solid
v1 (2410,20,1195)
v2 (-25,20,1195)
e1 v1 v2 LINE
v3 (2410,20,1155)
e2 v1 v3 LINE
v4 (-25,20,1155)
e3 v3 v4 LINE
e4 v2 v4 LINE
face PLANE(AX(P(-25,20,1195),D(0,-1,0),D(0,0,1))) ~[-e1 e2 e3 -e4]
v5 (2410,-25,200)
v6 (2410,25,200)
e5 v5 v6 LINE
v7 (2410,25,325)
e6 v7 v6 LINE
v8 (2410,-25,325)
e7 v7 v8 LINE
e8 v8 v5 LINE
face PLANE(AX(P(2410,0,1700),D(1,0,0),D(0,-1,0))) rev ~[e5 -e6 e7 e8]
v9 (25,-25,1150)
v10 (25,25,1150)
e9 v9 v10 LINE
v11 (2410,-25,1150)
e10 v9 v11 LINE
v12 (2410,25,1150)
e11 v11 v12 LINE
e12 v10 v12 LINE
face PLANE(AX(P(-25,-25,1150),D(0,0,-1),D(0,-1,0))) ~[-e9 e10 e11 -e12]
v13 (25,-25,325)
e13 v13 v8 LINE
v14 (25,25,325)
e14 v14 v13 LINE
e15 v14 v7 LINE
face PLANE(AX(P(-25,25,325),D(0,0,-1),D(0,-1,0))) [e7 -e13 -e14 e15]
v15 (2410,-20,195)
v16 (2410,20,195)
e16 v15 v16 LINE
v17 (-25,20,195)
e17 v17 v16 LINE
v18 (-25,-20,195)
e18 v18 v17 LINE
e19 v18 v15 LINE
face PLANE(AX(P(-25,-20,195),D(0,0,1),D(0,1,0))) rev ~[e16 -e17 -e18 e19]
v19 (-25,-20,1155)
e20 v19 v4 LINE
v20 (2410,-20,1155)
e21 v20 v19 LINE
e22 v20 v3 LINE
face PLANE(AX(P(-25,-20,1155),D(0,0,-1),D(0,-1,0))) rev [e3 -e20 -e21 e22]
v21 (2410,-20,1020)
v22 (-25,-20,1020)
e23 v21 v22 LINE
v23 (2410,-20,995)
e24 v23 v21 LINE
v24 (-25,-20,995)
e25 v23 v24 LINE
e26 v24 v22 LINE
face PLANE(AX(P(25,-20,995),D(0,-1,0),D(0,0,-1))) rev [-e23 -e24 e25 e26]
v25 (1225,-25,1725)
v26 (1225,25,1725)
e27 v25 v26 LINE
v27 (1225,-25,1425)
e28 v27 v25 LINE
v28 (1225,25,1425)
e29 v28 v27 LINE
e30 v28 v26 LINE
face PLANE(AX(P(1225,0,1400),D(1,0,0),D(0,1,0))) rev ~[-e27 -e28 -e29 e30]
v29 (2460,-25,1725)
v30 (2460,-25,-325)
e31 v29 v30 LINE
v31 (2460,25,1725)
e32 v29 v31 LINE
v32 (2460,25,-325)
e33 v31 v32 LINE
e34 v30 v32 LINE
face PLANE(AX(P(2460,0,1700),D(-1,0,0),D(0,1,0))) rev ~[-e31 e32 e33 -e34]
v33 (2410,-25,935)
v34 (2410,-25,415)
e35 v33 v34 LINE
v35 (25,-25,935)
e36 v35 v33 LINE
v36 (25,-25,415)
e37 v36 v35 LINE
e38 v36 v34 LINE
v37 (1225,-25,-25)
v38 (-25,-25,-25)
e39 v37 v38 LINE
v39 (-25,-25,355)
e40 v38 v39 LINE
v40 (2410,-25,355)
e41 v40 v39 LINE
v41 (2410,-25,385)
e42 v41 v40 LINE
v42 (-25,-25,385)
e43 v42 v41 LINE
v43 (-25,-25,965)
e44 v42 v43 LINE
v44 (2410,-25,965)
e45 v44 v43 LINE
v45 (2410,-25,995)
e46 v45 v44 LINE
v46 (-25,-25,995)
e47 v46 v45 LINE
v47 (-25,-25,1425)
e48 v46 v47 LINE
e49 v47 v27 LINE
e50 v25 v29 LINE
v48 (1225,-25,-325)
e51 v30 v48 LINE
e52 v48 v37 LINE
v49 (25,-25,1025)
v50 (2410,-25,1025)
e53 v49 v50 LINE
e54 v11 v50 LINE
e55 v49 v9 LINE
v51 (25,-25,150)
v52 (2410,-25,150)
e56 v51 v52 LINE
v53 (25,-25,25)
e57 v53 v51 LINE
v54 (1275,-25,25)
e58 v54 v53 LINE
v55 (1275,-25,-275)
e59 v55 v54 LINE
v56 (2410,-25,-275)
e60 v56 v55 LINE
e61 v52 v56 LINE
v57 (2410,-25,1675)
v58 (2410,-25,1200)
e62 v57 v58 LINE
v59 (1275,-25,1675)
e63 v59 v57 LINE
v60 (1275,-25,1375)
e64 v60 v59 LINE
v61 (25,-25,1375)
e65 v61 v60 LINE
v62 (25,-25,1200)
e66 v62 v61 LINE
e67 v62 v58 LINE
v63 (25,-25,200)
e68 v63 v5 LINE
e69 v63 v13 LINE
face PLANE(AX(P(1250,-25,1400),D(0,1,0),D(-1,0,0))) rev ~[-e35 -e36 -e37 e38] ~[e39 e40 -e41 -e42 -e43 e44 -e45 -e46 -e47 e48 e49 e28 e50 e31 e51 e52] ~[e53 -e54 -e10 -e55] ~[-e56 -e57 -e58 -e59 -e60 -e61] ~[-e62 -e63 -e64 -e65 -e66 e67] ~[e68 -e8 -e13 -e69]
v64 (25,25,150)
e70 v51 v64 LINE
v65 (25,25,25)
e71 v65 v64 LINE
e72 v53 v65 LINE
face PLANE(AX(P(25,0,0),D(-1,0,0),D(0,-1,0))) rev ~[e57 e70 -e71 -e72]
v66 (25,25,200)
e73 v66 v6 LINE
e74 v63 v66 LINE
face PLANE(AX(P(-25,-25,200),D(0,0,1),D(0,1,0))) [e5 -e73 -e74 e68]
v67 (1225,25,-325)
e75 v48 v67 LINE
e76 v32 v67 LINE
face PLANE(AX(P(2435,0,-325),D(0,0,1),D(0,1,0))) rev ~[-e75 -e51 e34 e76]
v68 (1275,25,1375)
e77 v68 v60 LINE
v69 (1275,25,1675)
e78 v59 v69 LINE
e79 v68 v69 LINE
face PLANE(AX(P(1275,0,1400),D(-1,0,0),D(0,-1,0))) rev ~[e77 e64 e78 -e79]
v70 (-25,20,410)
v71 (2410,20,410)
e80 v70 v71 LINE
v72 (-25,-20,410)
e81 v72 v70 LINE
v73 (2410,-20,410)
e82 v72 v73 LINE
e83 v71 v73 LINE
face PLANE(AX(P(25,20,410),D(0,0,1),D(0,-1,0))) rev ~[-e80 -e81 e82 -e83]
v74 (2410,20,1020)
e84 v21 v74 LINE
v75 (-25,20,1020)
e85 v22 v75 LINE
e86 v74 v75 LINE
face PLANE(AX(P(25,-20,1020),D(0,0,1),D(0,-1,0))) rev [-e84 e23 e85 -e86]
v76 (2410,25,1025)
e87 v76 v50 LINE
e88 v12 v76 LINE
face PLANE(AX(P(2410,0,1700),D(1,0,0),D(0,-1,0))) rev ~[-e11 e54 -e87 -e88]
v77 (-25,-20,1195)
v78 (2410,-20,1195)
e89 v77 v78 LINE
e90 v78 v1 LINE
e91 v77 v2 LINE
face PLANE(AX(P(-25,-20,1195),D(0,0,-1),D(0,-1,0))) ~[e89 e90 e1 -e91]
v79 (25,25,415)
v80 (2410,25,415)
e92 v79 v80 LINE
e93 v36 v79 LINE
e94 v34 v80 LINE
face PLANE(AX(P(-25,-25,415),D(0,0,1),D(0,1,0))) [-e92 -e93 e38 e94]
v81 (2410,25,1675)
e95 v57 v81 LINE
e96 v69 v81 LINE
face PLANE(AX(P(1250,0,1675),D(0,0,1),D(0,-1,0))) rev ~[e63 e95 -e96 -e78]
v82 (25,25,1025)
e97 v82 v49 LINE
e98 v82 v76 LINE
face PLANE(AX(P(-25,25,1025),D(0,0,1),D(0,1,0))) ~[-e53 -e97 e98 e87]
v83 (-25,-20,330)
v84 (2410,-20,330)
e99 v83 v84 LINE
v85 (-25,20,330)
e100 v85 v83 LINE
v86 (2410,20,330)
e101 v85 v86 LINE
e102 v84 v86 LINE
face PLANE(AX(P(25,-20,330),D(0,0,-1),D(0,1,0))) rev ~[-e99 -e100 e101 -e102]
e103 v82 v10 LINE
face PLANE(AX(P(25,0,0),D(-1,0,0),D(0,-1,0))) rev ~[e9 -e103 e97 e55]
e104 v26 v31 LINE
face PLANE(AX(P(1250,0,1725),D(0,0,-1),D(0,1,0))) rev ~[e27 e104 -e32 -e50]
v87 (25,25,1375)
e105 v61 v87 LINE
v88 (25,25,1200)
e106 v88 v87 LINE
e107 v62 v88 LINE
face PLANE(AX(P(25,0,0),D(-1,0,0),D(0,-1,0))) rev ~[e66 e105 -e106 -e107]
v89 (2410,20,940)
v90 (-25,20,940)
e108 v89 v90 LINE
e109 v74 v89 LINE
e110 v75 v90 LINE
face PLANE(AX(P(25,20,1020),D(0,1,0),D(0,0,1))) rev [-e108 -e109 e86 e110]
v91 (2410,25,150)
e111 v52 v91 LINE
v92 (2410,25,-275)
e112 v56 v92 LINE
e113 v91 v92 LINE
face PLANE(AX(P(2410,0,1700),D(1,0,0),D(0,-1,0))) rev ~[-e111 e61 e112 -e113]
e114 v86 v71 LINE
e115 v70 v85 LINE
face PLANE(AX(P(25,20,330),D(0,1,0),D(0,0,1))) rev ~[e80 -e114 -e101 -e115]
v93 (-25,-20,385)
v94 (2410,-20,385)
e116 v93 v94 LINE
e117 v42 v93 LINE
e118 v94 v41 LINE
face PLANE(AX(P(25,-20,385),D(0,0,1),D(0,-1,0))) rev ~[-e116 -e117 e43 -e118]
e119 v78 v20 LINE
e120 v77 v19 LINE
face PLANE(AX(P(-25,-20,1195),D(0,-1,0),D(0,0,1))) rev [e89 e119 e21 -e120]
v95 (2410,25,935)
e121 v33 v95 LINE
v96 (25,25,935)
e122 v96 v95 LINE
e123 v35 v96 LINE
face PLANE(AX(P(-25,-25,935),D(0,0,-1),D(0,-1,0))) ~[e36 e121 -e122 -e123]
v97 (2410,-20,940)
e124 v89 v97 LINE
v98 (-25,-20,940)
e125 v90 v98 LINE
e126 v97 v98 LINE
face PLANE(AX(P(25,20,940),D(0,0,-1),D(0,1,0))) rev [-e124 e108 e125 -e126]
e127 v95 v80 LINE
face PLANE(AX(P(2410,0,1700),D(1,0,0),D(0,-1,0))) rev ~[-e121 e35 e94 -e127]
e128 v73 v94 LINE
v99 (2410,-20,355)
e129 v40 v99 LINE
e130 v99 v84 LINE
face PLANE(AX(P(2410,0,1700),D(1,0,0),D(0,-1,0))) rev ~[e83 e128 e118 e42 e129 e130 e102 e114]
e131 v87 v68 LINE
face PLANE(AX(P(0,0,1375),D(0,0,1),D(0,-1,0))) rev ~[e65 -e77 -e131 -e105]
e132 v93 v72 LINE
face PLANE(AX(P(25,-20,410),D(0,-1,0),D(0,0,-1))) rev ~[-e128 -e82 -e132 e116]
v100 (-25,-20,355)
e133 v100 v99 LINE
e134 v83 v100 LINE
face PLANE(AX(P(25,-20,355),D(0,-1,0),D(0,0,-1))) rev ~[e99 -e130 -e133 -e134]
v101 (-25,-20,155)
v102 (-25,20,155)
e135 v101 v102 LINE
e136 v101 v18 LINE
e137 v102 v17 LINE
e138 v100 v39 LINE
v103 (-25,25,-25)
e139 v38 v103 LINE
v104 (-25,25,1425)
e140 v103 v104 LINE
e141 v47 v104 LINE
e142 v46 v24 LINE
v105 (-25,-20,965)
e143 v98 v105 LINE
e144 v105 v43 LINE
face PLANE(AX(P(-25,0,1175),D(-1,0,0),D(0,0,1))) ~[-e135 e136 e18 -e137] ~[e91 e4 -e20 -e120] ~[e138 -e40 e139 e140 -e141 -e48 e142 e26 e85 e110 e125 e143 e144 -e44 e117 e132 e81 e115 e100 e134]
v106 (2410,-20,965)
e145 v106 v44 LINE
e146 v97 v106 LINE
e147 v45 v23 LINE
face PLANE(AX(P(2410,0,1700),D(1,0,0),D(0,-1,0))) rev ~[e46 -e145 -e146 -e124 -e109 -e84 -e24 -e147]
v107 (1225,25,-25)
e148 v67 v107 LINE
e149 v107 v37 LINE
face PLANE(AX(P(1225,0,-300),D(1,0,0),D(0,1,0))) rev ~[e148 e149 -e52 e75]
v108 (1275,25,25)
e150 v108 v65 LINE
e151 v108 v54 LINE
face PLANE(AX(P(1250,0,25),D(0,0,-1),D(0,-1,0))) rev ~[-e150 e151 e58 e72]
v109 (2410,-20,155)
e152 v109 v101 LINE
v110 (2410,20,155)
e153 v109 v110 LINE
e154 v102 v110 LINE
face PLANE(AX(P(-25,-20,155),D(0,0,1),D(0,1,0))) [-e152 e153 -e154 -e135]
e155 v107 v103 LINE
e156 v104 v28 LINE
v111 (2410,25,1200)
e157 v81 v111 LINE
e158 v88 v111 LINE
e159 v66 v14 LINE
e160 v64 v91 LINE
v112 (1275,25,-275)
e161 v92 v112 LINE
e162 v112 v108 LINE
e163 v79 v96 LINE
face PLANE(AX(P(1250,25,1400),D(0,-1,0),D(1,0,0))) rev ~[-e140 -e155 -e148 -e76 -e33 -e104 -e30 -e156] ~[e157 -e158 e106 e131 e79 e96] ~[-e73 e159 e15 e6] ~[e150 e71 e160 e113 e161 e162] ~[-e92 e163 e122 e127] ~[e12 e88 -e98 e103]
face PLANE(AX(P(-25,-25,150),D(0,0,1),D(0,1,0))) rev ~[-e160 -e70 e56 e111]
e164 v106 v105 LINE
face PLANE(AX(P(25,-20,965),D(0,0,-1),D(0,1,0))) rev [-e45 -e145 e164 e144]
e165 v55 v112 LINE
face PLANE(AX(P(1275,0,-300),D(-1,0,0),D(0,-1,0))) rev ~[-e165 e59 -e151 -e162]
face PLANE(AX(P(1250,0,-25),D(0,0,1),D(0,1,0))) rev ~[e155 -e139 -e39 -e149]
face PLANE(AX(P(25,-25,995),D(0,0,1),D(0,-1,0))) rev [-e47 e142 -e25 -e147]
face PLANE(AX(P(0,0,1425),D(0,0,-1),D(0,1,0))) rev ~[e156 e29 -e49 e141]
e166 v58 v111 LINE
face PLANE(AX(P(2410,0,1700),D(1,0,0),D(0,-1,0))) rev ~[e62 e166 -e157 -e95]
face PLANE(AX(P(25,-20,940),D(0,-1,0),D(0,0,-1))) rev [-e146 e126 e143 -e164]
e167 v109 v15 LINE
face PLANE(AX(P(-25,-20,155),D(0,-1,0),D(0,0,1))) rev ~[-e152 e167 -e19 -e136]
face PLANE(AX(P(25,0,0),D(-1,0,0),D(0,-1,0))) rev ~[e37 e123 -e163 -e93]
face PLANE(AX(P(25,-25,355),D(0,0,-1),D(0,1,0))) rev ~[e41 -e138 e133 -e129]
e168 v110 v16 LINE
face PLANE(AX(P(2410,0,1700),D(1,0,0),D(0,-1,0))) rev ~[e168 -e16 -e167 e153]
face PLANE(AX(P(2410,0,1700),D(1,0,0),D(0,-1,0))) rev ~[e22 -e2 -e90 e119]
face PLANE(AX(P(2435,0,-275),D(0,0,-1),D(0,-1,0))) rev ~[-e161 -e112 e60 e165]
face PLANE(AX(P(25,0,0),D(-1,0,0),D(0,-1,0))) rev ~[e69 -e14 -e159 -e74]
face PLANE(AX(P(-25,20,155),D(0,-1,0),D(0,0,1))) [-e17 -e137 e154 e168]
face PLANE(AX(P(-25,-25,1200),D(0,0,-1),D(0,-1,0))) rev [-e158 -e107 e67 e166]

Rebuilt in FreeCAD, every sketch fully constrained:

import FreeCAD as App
import Part
import Sketcher


def add_polygon(sketch, points):
    """Adds a closed chain of lines whose ends are joined by coincident constraints."""
    first, n = sketch.GeometryCount, len(points)
    for a, b in zip(points, points[1:] + points[:1]):
        sketch.addGeometry(Part.LineSegment(App.Vector(*a, 0), App.Vector(*b, 0)), False)
    for i in range(n):
        sketch.addConstraint(Sketcher.Constraint("Coincident", first + i, 2, first + (i + 1) % n, 1))

doc = App.newDocument("Part")
body = doc.addObject("PartDesign::Body", "Body")

sketch1 = body.newObject("Sketcher::SketchObject", "Sketch")
sketch1.AttachmentSupport = (doc.getObject("YZ_Plane"), [""])
sketch1.MapMode = "FlatFace"
add_polygon(sketch1, [(25, 25), (-25, 25), (-25, -25), (25, -25)])
sketch1.addConstraint(Sketcher.Constraint("Horizontal", 0))
sketch1.addConstraint(Sketcher.Constraint("Vertical", 1))
sketch1.addConstraint(Sketcher.Constraint("Horizontal", 2))
sketch1.addConstraint(Sketcher.Constraint("Vertical", 3))
sketch1.addConstraint(Sketcher.Constraint("Symmetric", 0, 2, 2, 2, -1, 1))
sketch1.addConstraint(Sketcher.Constraint("Equal", 2, 1))
sketch1.addConstraint(Sketcher.Constraint("DistanceX", 0, 2, 0, 1, 50.0))

sketch2 = body.newObject("Sketcher::SketchObject", "Sketch001")
sketch2.AttachmentSupport = (doc.getObject("XZ_Plane"), [""])
sketch2.MapMode = "FlatFace"
add_polygon(sketch2, [(1250, 1400), (1250, 1700), (2435, 1700), (2435, -300), (1250, -300), (1250, 0), (0, 0), (0, 1400)])
sketch2.addConstraint(Sketcher.Constraint("Vertical", 0))
sketch2.addConstraint(Sketcher.Constraint("Horizontal", 1))
sketch2.addConstraint(Sketcher.Constraint("Vertical", 2))
sketch2.addConstraint(Sketcher.Constraint("Horizontal", 3))
sketch2.addConstraint(Sketcher.Constraint("Vertical", 4))
sketch2.addConstraint(Sketcher.Constraint("Horizontal", 5))
sketch2.addConstraint(Sketcher.Constraint("Vertical", 6))
sketch2.addConstraint(Sketcher.Constraint("Horizontal", 7))
sketch2.addConstraint(Sketcher.Constraint("Coincident", 5, 2, -1, 1))
sketch2.addConstraint(Sketcher.Constraint("Vertical", 0, 2, 3, 2))
sketch2.addConstraint(Sketcher.Constraint("Equal", 0, 4))
sketch2.addConstraint(Sketcher.Constraint("DistanceX", 1, 1, 1, 2, 1185.0))
sketch2.addConstraint(Sketcher.Constraint("DistanceX", 5, 2, 5, 1, 1250.0))
sketch2.addConstraint(Sketcher.Constraint("DistanceY", 0, 1, 0, 2, 300.0))
sketch2.addConstraint(Sketcher.Constraint("DistanceY", 2, 2, 2, 1, 2000.0))
doc.recompute()

additivepipe = body.newObject("PartDesign::AdditivePipe", "AdditivePipe")
additivepipe.Profile = sketch1
additivepipe.Spine = (sketch2, ["Edge1", "Edge2", "Edge3", "Edge4", "Edge5", "Edge6", "Edge7", "Edge8"])
additivepipe.Transition = "Right corner"

sketch3 = body.newObject("Sketcher::SketchObject", "Sketch002")
sketch3.AttachmentSupport = (doc.getObject("YZ_Plane"), [""])
sketch3.MapMode = "FlatFace"
sketch3.AttachmentOffset = App.Placement(App.Vector(0, 0, -25), App.Rotation())
add_polygon(sketch3, [(25, 415), (25, 325), (-25, 325), (-25, 355), (-20, 355), (-20, 330), (20, 330), (20, 410), (-20, 410), (-20, 385), (-25, 385), (-25, 415)])
sketch3.addConstraint(Sketcher.Constraint("Vertical", 0))
sketch3.addConstraint(Sketcher.Constraint("Horizontal", 1))
sketch3.addConstraint(Sketcher.Constraint("Vertical", 2))
sketch3.addConstraint(Sketcher.Constraint("Horizontal", 3))
sketch3.addConstraint(Sketcher.Constraint("Vertical", 4))
sketch3.addConstraint(Sketcher.Constraint("Horizontal", 5))
sketch3.addConstraint(Sketcher.Constraint("Vertical", 6))
sketch3.addConstraint(Sketcher.Constraint("Horizontal", 7))
sketch3.addConstraint(Sketcher.Constraint("Vertical", 8))
sketch3.addConstraint(Sketcher.Constraint("Horizontal", 9))
sketch3.addConstraint(Sketcher.Constraint("Vertical", 10))
sketch3.addConstraint(Sketcher.Constraint("Horizontal", 11))
sketch3.addConstraint(Sketcher.Constraint("Vertical", 4, 2, 7, 2))
sketch3.addConstraint(Sketcher.Constraint("Vertical", 2, 2, 9, 2))
sketch3.addConstraint(Sketcher.Constraint("Equal", 4, 8))
sketch3.addConstraint(Sketcher.Constraint("Equal", 2, 10))
sketch3.addConstraint(Sketcher.Constraint("DistanceX", 1, 2, 1, 1, 50.0))
sketch3.addConstraint(Sketcher.Constraint("DistanceX", 3, 1, 3, 2, 5.0))
sketch3.addConstraint(Sketcher.Constraint("DistanceX", 5, 1, 5, 2, 40.0))
sketch3.addConstraint(Sketcher.Constraint("DistanceY", 0, 2, 0, 1, 90.0))
sketch3.addConstraint(Sketcher.Constraint("DistanceY", 2, 1, 2, 2, 30.0))
sketch3.addConstraint(Sketcher.Constraint("DistanceY", 4, 2, 4, 1, 25.0))
sketch3.addConstraint(Sketcher.Constraint("DistanceX", -1, 1, 0, 2, 25.0))
sketch3.addConstraint(Sketcher.Constraint("DistanceY", -1, 1, 0, 2, 325.0))
pad1 = body.newObject("PartDesign::Pad", "Pad")
pad1.Profile = sketch3
pad1.Length = 2435

sketch4 = body.newObject("Sketcher::SketchObject", "Sketch003")
sketch4.AttachmentSupport = (doc.getObject("YZ_Plane"), [""])
sketch4.MapMode = "FlatFace"
sketch4.AttachmentOffset = App.Placement(App.Vector(0, 0, 25), App.Rotation())
add_polygon(sketch4, [(-25, 385), (-25, 355), (-20, 355), (-20, 330), (20, 330), (20, 410), (-20, 410), (-20, 385)])
sketch4.addConstraint(Sketcher.Constraint("Vertical", 0))
sketch4.addConstraint(Sketcher.Constraint("Horizontal", 1))
sketch4.addConstraint(Sketcher.Constraint("Vertical", 2))
sketch4.addConstraint(Sketcher.Constraint("Horizontal", 3))
sketch4.addConstraint(Sketcher.Constraint("Vertical", 4))
sketch4.addConstraint(Sketcher.Constraint("Horizontal", 5))
sketch4.addConstraint(Sketcher.Constraint("Vertical", 6))
sketch4.addConstraint(Sketcher.Constraint("Horizontal", 7))
sketch4.addConstraint(Sketcher.Constraint("Vertical", 2, 2, 5, 2))
sketch4.addConstraint(Sketcher.Constraint("Equal", 2, 6))
sketch4.addConstraint(Sketcher.Constraint("DistanceX", 1, 1, 1, 2, 5.0))
sketch4.addConstraint(Sketcher.Constraint("DistanceX", 3, 1, 3, 2, 40.0))
sketch4.addConstraint(Sketcher.Constraint("DistanceY", 0, 2, 0, 1, 30.0))
sketch4.addConstraint(Sketcher.Constraint("DistanceY", 2, 2, 2, 1, 25.0))
sketch4.addConstraint(Sketcher.Constraint("DistanceX", 0, 2, -1, 1, 25.0))
sketch4.addConstraint(Sketcher.Constraint("DistanceY", -1, 1, 0, 2, 355.0))
pocket1 = body.newObject("PartDesign::Pocket", "Pocket")
pocket1.Profile = sketch4
pocket1.Length = 80
doc.recompute()

datumplane = body.newObject("PartDesign::Plane", "DatumPlane")
datumplane.AttachmentSupport = (doc.getObject("XY_Plane"), [""])
datumplane.MapMode = "FlatFace"
datumplane.AttachmentOffset = App.Placement(App.Vector(0, 0, 675), App.Rotation())
mirrored = body.newObject("PartDesign::Mirrored", "Mirrored")
mirrored.Originals = [pad1, pocket1]
mirrored.MirrorPlane = (datumplane, [""])
body.Tip = mirrored

sketch5 = body.newObject("Sketcher::SketchObject", "Sketch004")
sketch5.AttachmentSupport = (doc.getObject("YZ_Plane"), [""])
sketch5.MapMode = "FlatFace"
sketch5.AttachmentOffset = App.Placement(App.Vector(0, 0, -25), App.Rotation())
add_polygon(sketch5, [(25, 150), (-25, 150), (-25, 200), (25, 200)])
add_polygon(sketch5, [(-20, 195), (-20, 155), (20, 155), (20, 195)])
sketch5.addConstraint(Sketcher.Constraint("Horizontal", 0))
sketch5.addConstraint(Sketcher.Constraint("Vertical", 1))
sketch5.addConstraint(Sketcher.Constraint("Horizontal", 2))
sketch5.addConstraint(Sketcher.Constraint("Vertical", 3))
sketch5.addConstraint(Sketcher.Constraint("Vertical", 4))
sketch5.addConstraint(Sketcher.Constraint("Horizontal", 5))
sketch5.addConstraint(Sketcher.Constraint("Vertical", 6))
sketch5.addConstraint(Sketcher.Constraint("Horizontal", 7))
sketch5.addConstraint(Sketcher.Constraint("Equal", 2, 1))
sketch5.addConstraint(Sketcher.Constraint("Equal", 7, 4))
sketch5.addConstraint(Sketcher.Constraint("DistanceX", 0, 2, 0, 1, 50.0))
sketch5.addConstraint(Sketcher.Constraint("DistanceX", 5, 1, 5, 2, 40.0))
sketch5.addConstraint(Sketcher.Constraint("DistanceX", 0, 2, -1, 1, 25.0))
sketch5.addConstraint(Sketcher.Constraint("DistanceY", -1, 1, 0, 2, 150.0))
sketch5.addConstraint(Sketcher.Constraint("DistanceX", 4, 2, -1, 1, 20.0))
sketch5.addConstraint(Sketcher.Constraint("DistanceY", -1, 1, 4, 2, 155.0))
pad2 = body.newObject("PartDesign::Pad", "Pad001")
pad2.Profile = sketch5
pad2.Length = 2435

sketch6 = body.newObject("Sketcher::SketchObject", "Sketch005")
sketch6.AttachmentSupport = (doc.getObject("YZ_Plane"), [""])
sketch6.MapMode = "FlatFace"
sketch6.AttachmentOffset = App.Placement(App.Vector(0, 0, -25), App.Rotation())
add_polygon(sketch6, [(20, 155), (-20, 155), (-20, 195), (20, 195)])
sketch6.addConstraint(Sketcher.Constraint("Horizontal", 0))
sketch6.addConstraint(Sketcher.Constraint("Vertical", 1))
sketch6.addConstraint(Sketcher.Constraint("Horizontal", 2))
sketch6.addConstraint(Sketcher.Constraint("Vertical", 3))
sketch6.addConstraint(Sketcher.Constraint("Equal", 2, 1))
sketch6.addConstraint(Sketcher.Constraint("DistanceX", 0, 2, 0, 1, 40.0))
sketch6.addConstraint(Sketcher.Constraint("DistanceX", 0, 2, -1, 1, 20.0))
sketch6.addConstraint(Sketcher.Constraint("DistanceY", -1, 1, 0, 2, 155.0))
pocket2 = body.newObject("PartDesign::Pocket", "Pocket001")
pocket2.Profile = sketch6
pocket2.Length = 80
pocket2.Reversed = True
doc.recompute()

datumplane2 = body.newObject("PartDesign::Plane", "DatumPlane001")
datumplane2.AttachmentSupport = (doc.getObject("XY_Plane"), [""])
datumplane2.MapMode = "FlatFace"
datumplane2.AttachmentOffset = App.Placement(App.Vector(0, 0, 675), App.Rotation())
mirrored2 = body.newObject("PartDesign::Mirrored", "Mirrored001")
mirrored2.Originals = [pad2, pocket2]
mirrored2.MirrorPlane = (datumplane2, [""])
body.Tip = mirrored2

doc.recompute()
